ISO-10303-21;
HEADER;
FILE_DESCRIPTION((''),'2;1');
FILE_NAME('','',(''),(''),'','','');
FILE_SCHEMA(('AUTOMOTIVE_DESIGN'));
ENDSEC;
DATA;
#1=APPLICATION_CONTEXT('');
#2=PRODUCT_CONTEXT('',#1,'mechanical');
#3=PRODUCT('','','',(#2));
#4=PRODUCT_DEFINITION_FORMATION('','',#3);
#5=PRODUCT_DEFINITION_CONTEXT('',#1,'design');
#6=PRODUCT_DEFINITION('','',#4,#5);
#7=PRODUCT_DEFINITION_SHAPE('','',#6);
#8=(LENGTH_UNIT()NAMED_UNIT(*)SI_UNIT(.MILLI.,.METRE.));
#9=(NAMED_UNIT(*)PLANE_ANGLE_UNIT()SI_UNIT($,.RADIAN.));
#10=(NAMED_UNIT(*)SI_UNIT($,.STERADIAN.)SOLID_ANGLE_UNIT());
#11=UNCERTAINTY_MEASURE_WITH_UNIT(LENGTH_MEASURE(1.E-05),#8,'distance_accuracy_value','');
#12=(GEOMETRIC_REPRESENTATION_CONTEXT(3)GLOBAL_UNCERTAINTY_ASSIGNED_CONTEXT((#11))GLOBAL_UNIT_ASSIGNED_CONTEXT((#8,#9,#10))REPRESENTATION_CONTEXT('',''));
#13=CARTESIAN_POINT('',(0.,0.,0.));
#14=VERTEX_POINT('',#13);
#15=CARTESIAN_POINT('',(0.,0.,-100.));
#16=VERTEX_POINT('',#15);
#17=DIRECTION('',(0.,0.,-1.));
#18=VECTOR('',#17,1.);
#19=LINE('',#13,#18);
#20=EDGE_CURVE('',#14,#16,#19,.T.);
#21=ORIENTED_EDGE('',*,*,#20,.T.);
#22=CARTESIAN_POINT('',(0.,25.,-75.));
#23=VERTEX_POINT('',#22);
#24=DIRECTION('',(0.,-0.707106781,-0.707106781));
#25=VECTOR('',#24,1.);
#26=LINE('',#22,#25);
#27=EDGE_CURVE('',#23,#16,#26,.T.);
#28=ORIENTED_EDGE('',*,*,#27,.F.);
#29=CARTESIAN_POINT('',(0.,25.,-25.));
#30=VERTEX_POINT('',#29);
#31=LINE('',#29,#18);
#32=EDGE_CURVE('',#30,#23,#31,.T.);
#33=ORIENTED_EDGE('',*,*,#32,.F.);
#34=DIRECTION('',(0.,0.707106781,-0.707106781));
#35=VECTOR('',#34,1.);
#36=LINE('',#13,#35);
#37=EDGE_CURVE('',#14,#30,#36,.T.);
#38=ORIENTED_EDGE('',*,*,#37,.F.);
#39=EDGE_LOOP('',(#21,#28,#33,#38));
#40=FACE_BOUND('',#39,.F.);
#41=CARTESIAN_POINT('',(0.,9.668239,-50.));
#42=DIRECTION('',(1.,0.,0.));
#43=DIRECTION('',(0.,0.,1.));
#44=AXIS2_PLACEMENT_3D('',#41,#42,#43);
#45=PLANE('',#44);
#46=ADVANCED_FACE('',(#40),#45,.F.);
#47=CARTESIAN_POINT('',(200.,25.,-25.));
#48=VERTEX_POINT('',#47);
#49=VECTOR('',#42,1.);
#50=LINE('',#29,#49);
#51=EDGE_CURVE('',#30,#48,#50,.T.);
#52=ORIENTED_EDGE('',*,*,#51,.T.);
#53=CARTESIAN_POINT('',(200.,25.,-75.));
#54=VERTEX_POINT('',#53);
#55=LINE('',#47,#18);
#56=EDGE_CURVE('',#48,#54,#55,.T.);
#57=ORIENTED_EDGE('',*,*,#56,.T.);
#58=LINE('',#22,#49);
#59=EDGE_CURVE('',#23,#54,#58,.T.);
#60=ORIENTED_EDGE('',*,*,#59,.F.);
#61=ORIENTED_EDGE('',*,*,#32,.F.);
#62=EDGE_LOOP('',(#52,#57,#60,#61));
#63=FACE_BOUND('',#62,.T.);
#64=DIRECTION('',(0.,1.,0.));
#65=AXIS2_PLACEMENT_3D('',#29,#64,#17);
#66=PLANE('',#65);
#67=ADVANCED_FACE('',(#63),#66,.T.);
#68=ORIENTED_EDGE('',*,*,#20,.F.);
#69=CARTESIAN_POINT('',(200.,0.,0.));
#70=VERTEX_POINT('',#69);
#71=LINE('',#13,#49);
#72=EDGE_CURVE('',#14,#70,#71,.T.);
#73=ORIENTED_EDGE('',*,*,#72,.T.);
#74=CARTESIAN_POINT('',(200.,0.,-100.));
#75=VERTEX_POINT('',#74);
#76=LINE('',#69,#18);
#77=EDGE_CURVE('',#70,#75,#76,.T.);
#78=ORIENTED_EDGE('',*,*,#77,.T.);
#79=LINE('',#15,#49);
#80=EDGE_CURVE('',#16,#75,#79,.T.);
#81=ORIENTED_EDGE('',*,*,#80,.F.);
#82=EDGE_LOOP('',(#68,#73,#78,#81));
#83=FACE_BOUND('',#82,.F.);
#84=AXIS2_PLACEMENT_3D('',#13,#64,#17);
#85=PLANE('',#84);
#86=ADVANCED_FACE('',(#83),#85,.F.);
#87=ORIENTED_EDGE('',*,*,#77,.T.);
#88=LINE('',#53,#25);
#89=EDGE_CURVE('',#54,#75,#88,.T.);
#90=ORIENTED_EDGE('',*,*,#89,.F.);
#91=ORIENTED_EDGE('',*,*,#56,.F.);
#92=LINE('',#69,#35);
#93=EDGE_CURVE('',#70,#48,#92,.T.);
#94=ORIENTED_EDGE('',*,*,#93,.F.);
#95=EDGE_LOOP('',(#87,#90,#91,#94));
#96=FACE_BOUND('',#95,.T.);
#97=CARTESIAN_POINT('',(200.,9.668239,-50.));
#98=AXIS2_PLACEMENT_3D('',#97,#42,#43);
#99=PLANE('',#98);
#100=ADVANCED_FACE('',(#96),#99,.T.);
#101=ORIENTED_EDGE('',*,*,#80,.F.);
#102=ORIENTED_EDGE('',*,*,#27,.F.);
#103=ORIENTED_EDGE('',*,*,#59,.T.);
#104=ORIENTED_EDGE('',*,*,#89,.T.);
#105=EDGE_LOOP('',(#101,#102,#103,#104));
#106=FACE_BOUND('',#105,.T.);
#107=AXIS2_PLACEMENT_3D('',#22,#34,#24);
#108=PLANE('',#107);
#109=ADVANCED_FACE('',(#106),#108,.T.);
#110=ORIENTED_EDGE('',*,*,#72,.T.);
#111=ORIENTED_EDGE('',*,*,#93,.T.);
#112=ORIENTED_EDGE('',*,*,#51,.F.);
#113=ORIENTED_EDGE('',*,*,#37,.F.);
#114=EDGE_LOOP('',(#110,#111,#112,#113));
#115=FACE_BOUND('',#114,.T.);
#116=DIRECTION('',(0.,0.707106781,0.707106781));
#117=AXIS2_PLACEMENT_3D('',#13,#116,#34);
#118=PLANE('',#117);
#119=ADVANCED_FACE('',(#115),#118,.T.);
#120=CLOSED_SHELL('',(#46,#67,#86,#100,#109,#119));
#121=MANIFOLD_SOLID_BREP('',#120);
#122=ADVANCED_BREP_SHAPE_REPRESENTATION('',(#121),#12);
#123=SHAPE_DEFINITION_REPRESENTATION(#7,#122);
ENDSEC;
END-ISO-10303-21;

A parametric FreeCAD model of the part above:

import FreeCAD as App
import Part
import Sketcher


def add_polygon(sketch, points):
    """Adds a closed chain of lines whose ends are joined by coincident constraints."""
    first, n = sketch.GeometryCount, len(points)
    for a, b in zip(points, points[1:] + points[:1]):
        sketch.addGeometry(Part.LineSegment(App.Vector(*a, 0), App.Vector(*b, 0)), False)
    for i in range(n):
        sketch.addConstraint(Sketcher.Constraint("Coincident", first + i, 2, first + (i + 1) % n, 1))

doc = App.newDocument("Part")
body = doc.addObject("PartDesign::Body", "Body")

# Sketch on YZ plane
sketch1 = body.newObject("Sketcher::SketchObject", "Sketch")
sketch1.AttachmentSupport = (doc.getObject("YZ_Plane"), [""])
sketch1.MapMode = "FlatFace"
add_polygon(sketch1, [(25, -25), (0, 0), (0, -100), (25, -75)])  # lines 0-3
sketch1.addConstraint(Sketcher.Constraint("Vertical", 1))
sketch1.addConstraint(Sketcher.Constraint("Vertical", 3))
sketch1.addConstraint(Sketcher.Constraint("Coincident", 0, 2, -1, 1))
sketch1.addConstraint(Sketcher.Constraint("Perpendicular", 0, 2))
sketch1.addConstraint(Sketcher.Constraint("Equal", 0, 2))
sketch1.addConstraint(Sketcher.Constraint("DistanceX", -1, 1, 2, 2, 25.0))
sketch1.addConstraint(Sketcher.Constraint("DistanceY", 1, 2, 1, 1, 100.0))
pad1 = body.newObject("PartDesign::Pad", "Pad")
pad1.Profile = sketch1
pad1.Length = 200

doc.recompute()
